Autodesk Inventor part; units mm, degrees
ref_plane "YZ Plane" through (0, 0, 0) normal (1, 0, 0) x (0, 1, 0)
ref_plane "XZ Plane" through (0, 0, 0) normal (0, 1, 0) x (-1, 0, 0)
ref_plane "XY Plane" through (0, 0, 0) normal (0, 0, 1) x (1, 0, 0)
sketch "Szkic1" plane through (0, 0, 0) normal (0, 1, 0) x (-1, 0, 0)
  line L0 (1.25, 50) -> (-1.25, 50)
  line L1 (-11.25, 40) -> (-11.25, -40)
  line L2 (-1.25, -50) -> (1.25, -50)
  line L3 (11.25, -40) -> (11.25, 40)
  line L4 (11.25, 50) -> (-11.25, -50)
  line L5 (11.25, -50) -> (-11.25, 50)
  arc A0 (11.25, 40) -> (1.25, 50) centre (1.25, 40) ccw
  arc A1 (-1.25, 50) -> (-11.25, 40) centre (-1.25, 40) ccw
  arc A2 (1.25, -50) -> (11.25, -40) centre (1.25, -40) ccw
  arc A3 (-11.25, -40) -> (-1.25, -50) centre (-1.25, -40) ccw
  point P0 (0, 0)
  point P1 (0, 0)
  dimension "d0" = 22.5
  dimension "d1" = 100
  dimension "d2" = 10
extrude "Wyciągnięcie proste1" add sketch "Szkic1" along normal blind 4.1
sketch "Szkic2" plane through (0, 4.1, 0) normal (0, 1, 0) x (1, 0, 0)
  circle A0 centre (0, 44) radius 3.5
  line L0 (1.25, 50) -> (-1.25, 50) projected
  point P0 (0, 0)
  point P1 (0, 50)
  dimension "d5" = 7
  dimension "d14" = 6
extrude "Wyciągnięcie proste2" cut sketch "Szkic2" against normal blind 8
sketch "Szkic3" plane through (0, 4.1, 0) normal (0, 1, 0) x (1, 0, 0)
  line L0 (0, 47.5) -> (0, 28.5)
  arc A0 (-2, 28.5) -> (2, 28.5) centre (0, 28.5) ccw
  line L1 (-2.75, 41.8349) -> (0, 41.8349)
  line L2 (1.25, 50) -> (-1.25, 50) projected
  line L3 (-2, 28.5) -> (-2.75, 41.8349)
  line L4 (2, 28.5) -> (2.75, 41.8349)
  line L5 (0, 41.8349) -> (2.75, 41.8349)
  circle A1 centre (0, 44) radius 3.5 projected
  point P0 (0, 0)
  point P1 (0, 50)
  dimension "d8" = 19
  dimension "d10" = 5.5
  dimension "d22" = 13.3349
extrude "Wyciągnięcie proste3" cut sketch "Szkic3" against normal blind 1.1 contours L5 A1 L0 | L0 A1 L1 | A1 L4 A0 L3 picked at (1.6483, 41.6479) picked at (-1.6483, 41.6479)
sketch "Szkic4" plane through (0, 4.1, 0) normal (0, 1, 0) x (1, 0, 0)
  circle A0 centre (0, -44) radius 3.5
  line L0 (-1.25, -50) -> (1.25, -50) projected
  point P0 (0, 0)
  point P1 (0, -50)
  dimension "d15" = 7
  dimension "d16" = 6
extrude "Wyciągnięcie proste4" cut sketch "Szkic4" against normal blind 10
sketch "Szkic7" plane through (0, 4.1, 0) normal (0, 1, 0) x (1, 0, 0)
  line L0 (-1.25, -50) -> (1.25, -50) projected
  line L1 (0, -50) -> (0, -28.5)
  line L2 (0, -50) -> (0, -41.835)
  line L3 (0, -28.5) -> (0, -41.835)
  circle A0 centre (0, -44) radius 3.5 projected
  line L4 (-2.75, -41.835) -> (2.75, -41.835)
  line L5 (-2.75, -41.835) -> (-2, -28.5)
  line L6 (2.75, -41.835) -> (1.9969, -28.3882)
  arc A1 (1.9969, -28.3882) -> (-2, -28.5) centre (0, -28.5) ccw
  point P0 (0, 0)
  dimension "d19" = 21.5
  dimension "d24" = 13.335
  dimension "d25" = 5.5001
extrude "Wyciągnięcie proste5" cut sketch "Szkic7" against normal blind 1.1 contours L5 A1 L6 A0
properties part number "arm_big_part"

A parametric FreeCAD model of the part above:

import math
import FreeCAD as App
import Part
import Sketcher
Q = App.Units.Quantity

doc = App.newDocument("Part")
params = doc.addObject("Spreadsheet::Sheet", "Params")
for row, (alias, value) in enumerate([
    ("sketch1_radius", "10 mm"),
    ("sketch1_height", "80 mm"),
    ("pad1_length", "4.1 mm"),
    ("sketch2_diameter", "7 mm"),
    ("pocket1_length", "8 mm"),
    ("sketch3_width", "5.5 mm"),
    ("sketch3_radius", "2 mm"),
    ("pocket2_length", "1.1 mm"),
    ("sketch4_diameter", "7 mm"),
    ("pocket3_length", "10 mm"),
    ("sketch5_radius", "2 mm"),
    ("sketch5_radius2", "3.5 mm"),
    ("pocket4_length", "1.1 mm"),
], start=1):
    params.set(f"A{row}", alias)
    params.set(f"B{row}", "=" + value)
    params.setAlias(f"B{row}", alias)

body = doc.addObject("PartDesign::Body", "Body")

sketch1 = body.newObject("Sketcher::SketchObject", "Sketch")
sketch1.AttachmentSupport = (doc.getObject("XZ_Plane"), [""])
sketch1.MapMode = "FlatFace"
sketch1.addGeometry([
    Part.LineSegment(App.Vector(-1.25, 50, 0), App.Vector(1.25, 50, 0)),
    Part.ArcOfCircle(Part.Circle(App.Vector(1.25, 40, 0), App.Vector(0, 0, 1), 10), math.radians(0), math.radians(90)),
    Part.LineSegment(App.Vector(11.25, 40, 0), App.Vector(11.25, -40, 0)),
    Part.ArcOfCircle(Part.Circle(App.Vector(1.25, -40, 0), App.Vector(0, 0, 1), 10), math.radians(-90), math.radians(0)),
    Part.LineSegment(App.Vector(1.25, -50, 0), App.Vector(-1.25, -50, 0)),
    Part.ArcOfCircle(Part.Circle(App.Vector(-1.25, -40, 0), App.Vector(0, 0, 1), 10), math.radians(180), math.radians(270)),
    Part.LineSegment(App.Vector(-11.25, -40, 0), App.Vector(-11.25, 40, 0)),
    Part.ArcOfCircle(Part.Circle(App.Vector(-1.25, 40, 0), App.Vector(0, 0, 1), 10), math.radians(90), math.radians(180)),
], False)
sketch1.addConstraint([
    Sketcher.Constraint("Tangent", 0, 2, 1, 2),
    Sketcher.Constraint("Tangent", 1, 1, 2, 1),
    Sketcher.Constraint("Tangent", 2, 2, 3, 2),
    Sketcher.Constraint("Tangent", 3, 1, 4, 1),
    Sketcher.Constraint("Tangent", 4, 2, 5, 2),
    Sketcher.Constraint("Tangent", 5, 1, 6, 1),
    Sketcher.Constraint("Tangent", 6, 2, 7, 2),
    Sketcher.Constraint("Tangent", 7, 1, 0, 1),
    Sketcher.Constraint("Horizontal", 0),
    Sketcher.Constraint("Vertical", 2),
    Sketcher.Constraint("Horizontal", 4),
    Sketcher.Constraint("Vertical", 6),
    Sketcher.Constraint("Equal", 1, 3),
    Sketcher.Constraint("Equal", 3, 5),
    Sketcher.Constraint("Equal", 5, 7),
    Sketcher.Constraint("Symmetric", 1, 3, 5, 3, -1, 1),
    Sketcher.Constraint("Radius", 1, Q("10 mm")),
    Sketcher.Constraint("DistanceX", 5, 1, 2, 2, Q("22.5 mm")),
    Sketcher.Constraint("DistanceY", 2, 2, 2, 1, Q("80 mm")),
])
sketch1.setExpression("Constraints[16]", "Params.sketch1_radius")
sketch1.setExpression("Constraints[18]", "Params.sketch1_height")
pad1 = body.newObject("PartDesign::Pad", "Pad")
pad1.Profile = sketch1
pad1.setExpression("Length", "Params.pad1_length")
pad1.Reversed = True

sketch2 = body.newObject("Sketcher::SketchObject", "Sketch001")
sketch2.AttachmentSupport = (doc.getObject("XZ_Plane"), [""])
sketch2.MapMode = "FlatFace"
sketch2.AttachmentOffset = App.Placement(App.Vector(0, 0, -4.1), App.Rotation())
sketch2.addGeometry(Part.Circle(App.Vector(0, -44, 0), App.Vector(0, 0, 1), 3.5), False)
sketch2.addConstraint([
    Sketcher.Constraint("PointOnObject", 0, 3, -2),
    Sketcher.Constraint("Diameter", 0, Q("7 mm")),
    Sketcher.Constraint("DistanceY", 0, 3, -1, 1, Q("44 mm")),
])
sketch2.setExpression("Constraints[1]", "Params.sketch2_diameter")
pocket1 = body.newObject("PartDesign::Pocket", "Pocket")
pocket1.Profile = sketch2
pocket1.setExpression("Length", "Params.pocket1_length")
pocket1.Reversed = True

sketch3 = body.newObject("Sketcher::SketchObject", "Sketch002")
sketch3.AttachmentSupport = (doc.getObject("XZ_Plane"), [""])
sketch3.MapMode = "FlatFace"
sketch3.AttachmentOffset = App.Placement(App.Vector(0, 0, -4.1), App.Rotation())
sketch3.addGeometry([
    Part.LineSegment(App.Vector(2.75, -41.8349, 0), App.Vector(-2.75, -41.8349, 0)),
    Part.LineSegment(App.Vector(-2.75, -41.8349, 0), App.Vector(-2, -28.5, 0)),
    Part.ArcOfCircle(Part.Circle(App.Vector(0, -28.5, 0), App.Vector(0, 0, 1), 2), math.radians(0), math.radians(180)),
    Part.LineSegment(App.Vector(2, -28.5, 0), App.Vector(2.75, -41.8349, 0)),
], False)
sketch3.addConstraint([
    Sketcher.Constraint("Coincident", 0, 2, 1, 1),
    Sketcher.Constraint("Coincident", 1, 2, 2, 2),
    Sketcher.Constraint("Coincident", 2, 1, 3, 1),
    Sketcher.Constraint("Coincident", 3, 2, 0, 1),
    Sketcher.Constraint("Horizontal", 0),
    Sketcher.Constraint("Symmetric", 1, 2, 2, 1, -2),
    Sketcher.Constraint("Horizontal", 2, 3, 1, 2),
    Sketcher.Constraint("Equal", 1, 3),
    Sketcher.Constraint("DistanceX", 0, 2, 0, 1, Q("5.5 mm")),
    Sketcher.Constraint("Radius", 2, Q("2 mm")),
    Sketcher.Constraint("DistanceY", 0, 2, 2, 3, Q("13.335 mm")),
    Sketcher.Constraint("DistanceY", 2, 3, -1, 1, Q("28.5 mm")),
])
sketch3.setExpression("Constraints[8]", "Params.sketch3_width")
sketch3.setExpression("Constraints[9]", "Params.sketch3_radius")
pocket2 = body.newObject("PartDesign::Pocket", "Pocket001")
pocket2.Profile = sketch3
pocket2.setExpression("Length", "Params.pocket2_length")
pocket2.Reversed = True

sketch4 = body.newObject("Sketcher::SketchObject", "Sketch003")
sketch4.AttachmentSupport = (doc.getObject("XZ_Plane"), [""])
sketch4.MapMode = "FlatFace"
sketch4.AttachmentOffset = App.Placement(App.Vector(0, 0, -4.1), App.Rotation())
sketch4.addGeometry(Part.Circle(App.Vector(0, 44, 0), App.Vector(0, 0, 1), 3.5), False)
sketch4.addConstraint([
    Sketcher.Constraint("PointOnObject", 0, 3, -2),
    Sketcher.Constraint("Diameter", 0, Q("7 mm")),
    Sketcher.Constraint("DistanceY", -1, 1, 0, 3, Q("44 mm")),
])
sketch4.setExpression("Constraints[1]", "Params.sketch4_diameter")
pocket3 = body.newObject("PartDesign::Pocket", "Pocket002")
pocket3.Profile = sketch4
pocket3.setExpression("Length", "Params.pocket3_length")
pocket3.Reversed = True

sketch5 = body.newObject("Sketcher::SketchObject", "Sketch004")
sketch5.AttachmentSupport = (doc.getObject("XZ_Plane"), [""])
sketch5.MapMode = "FlatFace"
sketch5.AttachmentOffset = App.Placement(App.Vector(0, 0, -4.1), App.Rotation())
sketch5.addGeometry([
    Part.LineSegment(App.Vector(-2, 28.5, 0), App.Vector(-2.75, 41.835, 0)),
    Part.ArcOfCircle(Part.Circle(App.Vector(0, 44, 0), App.Vector(0, 0, 1), 3.5), math.radians(-141.787606), math.radians(-38.212394)),
    Part.LineSegment(App.Vector(2.75, 41.835, 0), App.Vector(1.9969, 28.3882, 0)),
    Part.ArcOfCircle(Part.Circle(App.Vector(0, 28.5, 0), App.Vector(0, 0, 1), 2.000027), math.radians(180), math.radians(356.795539)),
], False)
sketch5.addConstraint([
    Sketcher.Constraint("Coincident", 0, 2, 1, 1),
    Sketcher.Constraint("Coincident", 1, 2, 2, 1),
    Sketcher.Constraint("Tangent", 2, 2, 3, 2),
    Sketcher.Constraint("Coincident", 3, 1, 0, 1),
    Sketcher.Constraint("Symmetric", 0, 2, 1, 2, -2),
    Sketcher.Constraint("PointOnObject", 3, 3, -2),
    Sketcher.Constraint("Radius", 3, Q("2 mm")),
    Sketcher.Constraint("Radius", 1, Q("3.5 mm")),
    Sketcher.Constraint("DistanceX", 0, 2, 1, 2, Q("5.5 mm")),
    Sketcher.Constraint("DistanceY", -1, 1, 1, 3, Q("44 mm")),
    Sketcher.Constraint("DistanceY", 3, 3, 0, 2, Q("13.335 mm")),
    Sketcher.Constraint("DistanceY", 3, 1, 0, 2, Q("13.335 mm")),
])
sketch5.setExpression("Constraints[6]", "Params.sketch5_radius")
sketch5.setExpression("Constraints[7]", "Params.sketch5_radius2")
pocket4 = body.newObject("PartDesign::Pocket", "Pocket003")
pocket4.Profile = sketch5
pocket4.setExpression("Length", "Params.pocket4_length")
pocket4.Reversed = True

doc.recompute()
